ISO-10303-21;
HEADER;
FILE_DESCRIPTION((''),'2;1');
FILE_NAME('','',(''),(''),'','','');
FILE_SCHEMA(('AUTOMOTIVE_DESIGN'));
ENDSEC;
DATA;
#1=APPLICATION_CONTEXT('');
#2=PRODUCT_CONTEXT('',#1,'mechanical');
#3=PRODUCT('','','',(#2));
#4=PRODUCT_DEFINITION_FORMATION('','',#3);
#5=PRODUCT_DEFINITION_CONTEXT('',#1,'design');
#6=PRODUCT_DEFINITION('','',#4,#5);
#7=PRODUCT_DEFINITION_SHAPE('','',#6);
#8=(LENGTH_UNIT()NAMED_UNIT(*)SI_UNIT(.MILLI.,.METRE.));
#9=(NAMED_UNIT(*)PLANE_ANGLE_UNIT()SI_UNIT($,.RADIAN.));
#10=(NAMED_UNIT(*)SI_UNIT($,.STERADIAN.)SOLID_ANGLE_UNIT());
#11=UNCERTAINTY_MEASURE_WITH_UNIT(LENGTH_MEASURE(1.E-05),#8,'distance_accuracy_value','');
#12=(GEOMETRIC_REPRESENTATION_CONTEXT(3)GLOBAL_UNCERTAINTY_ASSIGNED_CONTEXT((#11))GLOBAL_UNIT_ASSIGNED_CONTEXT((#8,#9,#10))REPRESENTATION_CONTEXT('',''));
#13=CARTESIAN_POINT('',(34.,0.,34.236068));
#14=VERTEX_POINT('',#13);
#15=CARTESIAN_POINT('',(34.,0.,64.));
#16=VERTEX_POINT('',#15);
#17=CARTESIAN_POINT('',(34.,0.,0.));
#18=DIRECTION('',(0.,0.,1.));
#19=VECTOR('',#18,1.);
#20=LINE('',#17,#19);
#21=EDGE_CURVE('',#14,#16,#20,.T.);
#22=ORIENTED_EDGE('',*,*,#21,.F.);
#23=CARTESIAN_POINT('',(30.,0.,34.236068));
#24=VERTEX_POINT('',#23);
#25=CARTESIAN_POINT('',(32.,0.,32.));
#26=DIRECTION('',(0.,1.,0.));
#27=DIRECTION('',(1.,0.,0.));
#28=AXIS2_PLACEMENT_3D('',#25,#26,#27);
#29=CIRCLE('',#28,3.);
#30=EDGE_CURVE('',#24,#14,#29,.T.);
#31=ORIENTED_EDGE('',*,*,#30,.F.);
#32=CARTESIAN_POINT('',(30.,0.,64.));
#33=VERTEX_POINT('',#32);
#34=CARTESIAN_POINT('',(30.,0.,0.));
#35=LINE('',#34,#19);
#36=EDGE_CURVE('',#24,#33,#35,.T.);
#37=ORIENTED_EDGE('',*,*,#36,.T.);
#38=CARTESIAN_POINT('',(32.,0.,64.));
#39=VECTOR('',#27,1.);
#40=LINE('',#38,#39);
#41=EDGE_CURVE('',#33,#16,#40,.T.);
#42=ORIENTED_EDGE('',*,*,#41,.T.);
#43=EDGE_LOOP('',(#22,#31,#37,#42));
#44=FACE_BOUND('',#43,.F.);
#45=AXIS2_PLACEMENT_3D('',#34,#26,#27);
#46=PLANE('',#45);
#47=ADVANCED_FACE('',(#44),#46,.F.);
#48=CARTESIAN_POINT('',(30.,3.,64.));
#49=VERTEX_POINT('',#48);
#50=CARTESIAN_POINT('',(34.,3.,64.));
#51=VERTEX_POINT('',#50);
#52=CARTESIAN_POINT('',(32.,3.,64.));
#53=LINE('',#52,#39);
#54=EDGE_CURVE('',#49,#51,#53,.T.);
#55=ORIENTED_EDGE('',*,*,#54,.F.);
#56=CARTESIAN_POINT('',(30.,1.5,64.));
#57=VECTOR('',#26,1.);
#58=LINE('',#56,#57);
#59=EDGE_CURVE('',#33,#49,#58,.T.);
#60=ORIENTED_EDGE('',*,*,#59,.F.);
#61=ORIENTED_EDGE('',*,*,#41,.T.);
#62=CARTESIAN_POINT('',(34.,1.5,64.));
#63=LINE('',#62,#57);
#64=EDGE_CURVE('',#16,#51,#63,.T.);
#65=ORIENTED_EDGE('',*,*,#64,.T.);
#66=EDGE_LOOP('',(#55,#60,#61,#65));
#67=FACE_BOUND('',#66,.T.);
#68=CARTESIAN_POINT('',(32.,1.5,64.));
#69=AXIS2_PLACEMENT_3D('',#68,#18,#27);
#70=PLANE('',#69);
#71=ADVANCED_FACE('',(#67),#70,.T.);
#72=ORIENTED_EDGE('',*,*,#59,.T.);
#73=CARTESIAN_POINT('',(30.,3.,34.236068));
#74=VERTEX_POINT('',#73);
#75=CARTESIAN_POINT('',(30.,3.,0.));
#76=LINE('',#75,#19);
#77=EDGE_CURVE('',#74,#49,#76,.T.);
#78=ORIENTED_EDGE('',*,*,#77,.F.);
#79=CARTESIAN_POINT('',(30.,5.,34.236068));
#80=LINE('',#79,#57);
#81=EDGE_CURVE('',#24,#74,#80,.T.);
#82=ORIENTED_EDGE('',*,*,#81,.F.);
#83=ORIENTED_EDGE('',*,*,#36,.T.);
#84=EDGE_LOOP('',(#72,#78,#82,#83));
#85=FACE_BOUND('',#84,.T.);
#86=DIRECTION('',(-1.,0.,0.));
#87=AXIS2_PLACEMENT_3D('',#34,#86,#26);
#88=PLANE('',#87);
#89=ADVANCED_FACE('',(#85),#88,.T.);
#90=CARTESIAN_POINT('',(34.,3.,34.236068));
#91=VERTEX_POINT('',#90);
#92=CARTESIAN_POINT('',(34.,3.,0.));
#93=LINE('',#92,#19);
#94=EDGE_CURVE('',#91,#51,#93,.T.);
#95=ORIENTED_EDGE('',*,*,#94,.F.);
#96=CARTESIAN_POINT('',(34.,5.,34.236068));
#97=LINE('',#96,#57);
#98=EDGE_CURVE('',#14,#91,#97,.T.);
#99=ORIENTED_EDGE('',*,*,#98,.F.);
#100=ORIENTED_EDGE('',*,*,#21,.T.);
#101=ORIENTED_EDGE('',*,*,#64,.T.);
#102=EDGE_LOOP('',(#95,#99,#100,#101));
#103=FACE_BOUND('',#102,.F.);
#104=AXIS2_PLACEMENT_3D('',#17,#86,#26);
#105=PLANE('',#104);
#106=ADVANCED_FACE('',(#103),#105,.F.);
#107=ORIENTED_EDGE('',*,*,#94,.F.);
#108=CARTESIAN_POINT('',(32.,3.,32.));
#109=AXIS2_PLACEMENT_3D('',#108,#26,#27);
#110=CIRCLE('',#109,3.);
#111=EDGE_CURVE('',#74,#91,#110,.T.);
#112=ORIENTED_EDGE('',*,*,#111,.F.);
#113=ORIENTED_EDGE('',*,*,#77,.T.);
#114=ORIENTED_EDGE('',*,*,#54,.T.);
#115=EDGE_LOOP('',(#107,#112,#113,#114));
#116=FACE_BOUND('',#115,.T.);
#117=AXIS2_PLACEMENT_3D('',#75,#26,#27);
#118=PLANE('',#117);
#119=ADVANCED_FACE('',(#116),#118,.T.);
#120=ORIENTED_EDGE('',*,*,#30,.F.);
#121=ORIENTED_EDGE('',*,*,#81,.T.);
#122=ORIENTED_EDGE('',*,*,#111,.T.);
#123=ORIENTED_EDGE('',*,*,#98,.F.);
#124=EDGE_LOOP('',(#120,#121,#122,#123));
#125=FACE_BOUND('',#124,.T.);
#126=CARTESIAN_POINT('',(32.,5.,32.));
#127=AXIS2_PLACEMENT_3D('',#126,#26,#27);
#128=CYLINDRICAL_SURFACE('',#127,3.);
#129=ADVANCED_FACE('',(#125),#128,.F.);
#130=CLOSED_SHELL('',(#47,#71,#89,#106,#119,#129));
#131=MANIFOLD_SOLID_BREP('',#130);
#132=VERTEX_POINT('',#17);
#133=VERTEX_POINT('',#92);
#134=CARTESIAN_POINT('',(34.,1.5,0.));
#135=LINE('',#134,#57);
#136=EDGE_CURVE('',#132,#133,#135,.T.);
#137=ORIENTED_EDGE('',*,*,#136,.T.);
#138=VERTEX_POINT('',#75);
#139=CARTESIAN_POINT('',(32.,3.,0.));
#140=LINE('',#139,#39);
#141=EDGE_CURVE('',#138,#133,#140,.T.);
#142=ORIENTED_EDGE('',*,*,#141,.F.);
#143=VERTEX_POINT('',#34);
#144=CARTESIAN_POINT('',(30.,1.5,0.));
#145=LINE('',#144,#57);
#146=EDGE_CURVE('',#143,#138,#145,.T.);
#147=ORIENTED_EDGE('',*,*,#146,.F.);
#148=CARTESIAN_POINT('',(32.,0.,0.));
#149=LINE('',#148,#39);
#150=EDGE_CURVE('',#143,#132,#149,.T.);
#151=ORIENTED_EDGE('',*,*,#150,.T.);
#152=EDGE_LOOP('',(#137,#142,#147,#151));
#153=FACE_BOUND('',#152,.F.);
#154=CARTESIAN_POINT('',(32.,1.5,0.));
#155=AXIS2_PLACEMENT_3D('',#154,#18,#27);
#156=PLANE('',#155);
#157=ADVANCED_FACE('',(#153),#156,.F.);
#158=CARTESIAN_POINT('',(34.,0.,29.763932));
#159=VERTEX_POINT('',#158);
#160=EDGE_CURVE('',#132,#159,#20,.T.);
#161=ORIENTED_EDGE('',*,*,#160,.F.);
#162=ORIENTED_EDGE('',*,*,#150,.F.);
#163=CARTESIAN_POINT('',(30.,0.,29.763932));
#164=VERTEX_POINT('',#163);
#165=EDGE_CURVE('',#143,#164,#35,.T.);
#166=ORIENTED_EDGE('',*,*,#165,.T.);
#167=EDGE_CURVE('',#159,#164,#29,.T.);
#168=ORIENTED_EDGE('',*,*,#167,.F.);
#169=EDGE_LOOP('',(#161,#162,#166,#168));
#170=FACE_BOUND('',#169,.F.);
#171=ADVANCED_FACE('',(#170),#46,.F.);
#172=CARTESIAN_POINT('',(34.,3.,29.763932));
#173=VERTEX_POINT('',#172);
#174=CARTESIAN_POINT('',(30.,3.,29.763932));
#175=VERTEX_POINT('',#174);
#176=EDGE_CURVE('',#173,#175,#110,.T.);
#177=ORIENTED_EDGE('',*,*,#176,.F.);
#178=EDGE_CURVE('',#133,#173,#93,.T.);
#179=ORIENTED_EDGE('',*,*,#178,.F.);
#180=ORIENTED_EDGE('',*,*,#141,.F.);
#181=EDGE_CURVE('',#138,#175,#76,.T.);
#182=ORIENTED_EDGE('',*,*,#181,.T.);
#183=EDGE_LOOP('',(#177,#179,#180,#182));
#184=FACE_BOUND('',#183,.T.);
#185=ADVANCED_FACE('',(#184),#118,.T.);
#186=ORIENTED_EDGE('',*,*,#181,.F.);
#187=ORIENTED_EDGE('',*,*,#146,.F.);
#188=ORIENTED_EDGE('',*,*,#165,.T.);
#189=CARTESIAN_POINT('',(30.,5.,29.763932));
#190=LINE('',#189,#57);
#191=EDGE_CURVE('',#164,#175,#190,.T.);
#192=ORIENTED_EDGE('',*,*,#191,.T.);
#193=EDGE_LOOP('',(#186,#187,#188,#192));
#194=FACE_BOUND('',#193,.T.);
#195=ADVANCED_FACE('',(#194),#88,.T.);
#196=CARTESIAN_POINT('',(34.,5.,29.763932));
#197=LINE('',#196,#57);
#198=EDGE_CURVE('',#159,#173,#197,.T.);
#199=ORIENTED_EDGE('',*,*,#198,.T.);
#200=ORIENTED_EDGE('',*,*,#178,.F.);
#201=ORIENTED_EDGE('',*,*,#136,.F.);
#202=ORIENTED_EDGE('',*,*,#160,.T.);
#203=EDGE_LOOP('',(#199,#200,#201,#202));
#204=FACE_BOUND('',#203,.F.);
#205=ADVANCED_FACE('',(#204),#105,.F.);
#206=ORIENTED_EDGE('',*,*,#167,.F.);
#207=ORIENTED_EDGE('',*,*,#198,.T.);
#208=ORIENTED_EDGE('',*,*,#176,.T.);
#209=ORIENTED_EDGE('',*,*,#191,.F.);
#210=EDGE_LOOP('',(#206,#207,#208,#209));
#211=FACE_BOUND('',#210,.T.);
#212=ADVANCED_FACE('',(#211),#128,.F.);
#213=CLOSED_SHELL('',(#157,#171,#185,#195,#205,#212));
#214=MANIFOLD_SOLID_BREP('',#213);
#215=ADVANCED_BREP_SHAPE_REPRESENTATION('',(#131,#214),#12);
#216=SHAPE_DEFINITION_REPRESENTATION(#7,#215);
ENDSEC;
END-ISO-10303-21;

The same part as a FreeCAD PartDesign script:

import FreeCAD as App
import Part
import Sketcher

V = App.Vector

doc = App.newDocument("Part")
body = doc.addObject("PartDesign::Body", "Body")

sketch1 = body.newObject("Sketcher::SketchObject", "Sketch")
sketch1.AttachmentSupport = (doc.getObject("XZ_Plane"), [""])
sketch1.MapMode = "FlatFace"
sketch1.AttachmentOffset = App.Placement(V(0, 0, -5), App.Rotation())
sketch1.addGeometry(Part.Circle(V(32, 32, 0), V(0, 0, 1), 3), False)
sketch1.addConstraint([
    Sketcher.Constraint("Diameter", 0, 6.0),
    Sketcher.Constraint("DistanceX", -1, 1, 0, 3, 32.0),
    Sketcher.Constraint("DistanceY", -1, 1, 0, 3, 32.0),
])
pad1 = body.newObject("PartDesign::Pad", "Pad")
pad1.Profile = sketch1
pad1.Length = 10
body2 = doc.addObject("PartDesign::Body", "Body001")
body2.AllowCompound = True

sketch2 = body2.newObject("Sketcher::SketchObject", "Sketch001")
sketch2.AttachmentSupport = (doc.getObject("XY_Plane001"), [""])
sketch2.MapMode = "FlatFace"
sketch2.addGeometry([
    Part.LineSegment(V(30, 3, 0), V(30, 0, 0)),
    Part.LineSegment(V(30, 0, 0), V(34, 0, 0)),
    Part.LineSegment(V(34, 0, 0), V(34, 3, 0)),
    Part.LineSegment(V(34, 3, 0), V(30, 3, 0)),
], False)
sketch2.addConstraint([
    Sketcher.Constraint("Coincident", 0, 2, 1, 1),
    Sketcher.Constraint("Coincident", 1, 2, 2, 1),
    Sketcher.Constraint("Coincident", 2, 2, 3, 1),
    Sketcher.Constraint("Coincident", 3, 2, 0, 1),
    Sketcher.Constraint("Vertical", 0),
    Sketcher.Constraint("Horizontal", 1),
    Sketcher.Constraint("Vertical", 2),
    Sketcher.Constraint("Horizontal", 3),
    Sketcher.Constraint("PointOnObject", 0, 2, -1),
    Sketcher.Constraint("DistanceX", 1, 1, 1, 2, 4.0),
    Sketcher.Constraint("DistanceY", 0, 2, 0, 1, 3.0),
    Sketcher.Constraint("DistanceX", -1, 1, 0, 2, 30.0),
])
pad2 = body2.newObject("PartDesign::Pad", "Pad001")
pad2.Profile = sketch2
pad2.Length = 64
doc.recompute()

boolean = body2.newObject("PartDesign::Boolean", "Boolean")
boolean.Type = "Cut"
boolean.addObjects([body])

doc.recompute()
